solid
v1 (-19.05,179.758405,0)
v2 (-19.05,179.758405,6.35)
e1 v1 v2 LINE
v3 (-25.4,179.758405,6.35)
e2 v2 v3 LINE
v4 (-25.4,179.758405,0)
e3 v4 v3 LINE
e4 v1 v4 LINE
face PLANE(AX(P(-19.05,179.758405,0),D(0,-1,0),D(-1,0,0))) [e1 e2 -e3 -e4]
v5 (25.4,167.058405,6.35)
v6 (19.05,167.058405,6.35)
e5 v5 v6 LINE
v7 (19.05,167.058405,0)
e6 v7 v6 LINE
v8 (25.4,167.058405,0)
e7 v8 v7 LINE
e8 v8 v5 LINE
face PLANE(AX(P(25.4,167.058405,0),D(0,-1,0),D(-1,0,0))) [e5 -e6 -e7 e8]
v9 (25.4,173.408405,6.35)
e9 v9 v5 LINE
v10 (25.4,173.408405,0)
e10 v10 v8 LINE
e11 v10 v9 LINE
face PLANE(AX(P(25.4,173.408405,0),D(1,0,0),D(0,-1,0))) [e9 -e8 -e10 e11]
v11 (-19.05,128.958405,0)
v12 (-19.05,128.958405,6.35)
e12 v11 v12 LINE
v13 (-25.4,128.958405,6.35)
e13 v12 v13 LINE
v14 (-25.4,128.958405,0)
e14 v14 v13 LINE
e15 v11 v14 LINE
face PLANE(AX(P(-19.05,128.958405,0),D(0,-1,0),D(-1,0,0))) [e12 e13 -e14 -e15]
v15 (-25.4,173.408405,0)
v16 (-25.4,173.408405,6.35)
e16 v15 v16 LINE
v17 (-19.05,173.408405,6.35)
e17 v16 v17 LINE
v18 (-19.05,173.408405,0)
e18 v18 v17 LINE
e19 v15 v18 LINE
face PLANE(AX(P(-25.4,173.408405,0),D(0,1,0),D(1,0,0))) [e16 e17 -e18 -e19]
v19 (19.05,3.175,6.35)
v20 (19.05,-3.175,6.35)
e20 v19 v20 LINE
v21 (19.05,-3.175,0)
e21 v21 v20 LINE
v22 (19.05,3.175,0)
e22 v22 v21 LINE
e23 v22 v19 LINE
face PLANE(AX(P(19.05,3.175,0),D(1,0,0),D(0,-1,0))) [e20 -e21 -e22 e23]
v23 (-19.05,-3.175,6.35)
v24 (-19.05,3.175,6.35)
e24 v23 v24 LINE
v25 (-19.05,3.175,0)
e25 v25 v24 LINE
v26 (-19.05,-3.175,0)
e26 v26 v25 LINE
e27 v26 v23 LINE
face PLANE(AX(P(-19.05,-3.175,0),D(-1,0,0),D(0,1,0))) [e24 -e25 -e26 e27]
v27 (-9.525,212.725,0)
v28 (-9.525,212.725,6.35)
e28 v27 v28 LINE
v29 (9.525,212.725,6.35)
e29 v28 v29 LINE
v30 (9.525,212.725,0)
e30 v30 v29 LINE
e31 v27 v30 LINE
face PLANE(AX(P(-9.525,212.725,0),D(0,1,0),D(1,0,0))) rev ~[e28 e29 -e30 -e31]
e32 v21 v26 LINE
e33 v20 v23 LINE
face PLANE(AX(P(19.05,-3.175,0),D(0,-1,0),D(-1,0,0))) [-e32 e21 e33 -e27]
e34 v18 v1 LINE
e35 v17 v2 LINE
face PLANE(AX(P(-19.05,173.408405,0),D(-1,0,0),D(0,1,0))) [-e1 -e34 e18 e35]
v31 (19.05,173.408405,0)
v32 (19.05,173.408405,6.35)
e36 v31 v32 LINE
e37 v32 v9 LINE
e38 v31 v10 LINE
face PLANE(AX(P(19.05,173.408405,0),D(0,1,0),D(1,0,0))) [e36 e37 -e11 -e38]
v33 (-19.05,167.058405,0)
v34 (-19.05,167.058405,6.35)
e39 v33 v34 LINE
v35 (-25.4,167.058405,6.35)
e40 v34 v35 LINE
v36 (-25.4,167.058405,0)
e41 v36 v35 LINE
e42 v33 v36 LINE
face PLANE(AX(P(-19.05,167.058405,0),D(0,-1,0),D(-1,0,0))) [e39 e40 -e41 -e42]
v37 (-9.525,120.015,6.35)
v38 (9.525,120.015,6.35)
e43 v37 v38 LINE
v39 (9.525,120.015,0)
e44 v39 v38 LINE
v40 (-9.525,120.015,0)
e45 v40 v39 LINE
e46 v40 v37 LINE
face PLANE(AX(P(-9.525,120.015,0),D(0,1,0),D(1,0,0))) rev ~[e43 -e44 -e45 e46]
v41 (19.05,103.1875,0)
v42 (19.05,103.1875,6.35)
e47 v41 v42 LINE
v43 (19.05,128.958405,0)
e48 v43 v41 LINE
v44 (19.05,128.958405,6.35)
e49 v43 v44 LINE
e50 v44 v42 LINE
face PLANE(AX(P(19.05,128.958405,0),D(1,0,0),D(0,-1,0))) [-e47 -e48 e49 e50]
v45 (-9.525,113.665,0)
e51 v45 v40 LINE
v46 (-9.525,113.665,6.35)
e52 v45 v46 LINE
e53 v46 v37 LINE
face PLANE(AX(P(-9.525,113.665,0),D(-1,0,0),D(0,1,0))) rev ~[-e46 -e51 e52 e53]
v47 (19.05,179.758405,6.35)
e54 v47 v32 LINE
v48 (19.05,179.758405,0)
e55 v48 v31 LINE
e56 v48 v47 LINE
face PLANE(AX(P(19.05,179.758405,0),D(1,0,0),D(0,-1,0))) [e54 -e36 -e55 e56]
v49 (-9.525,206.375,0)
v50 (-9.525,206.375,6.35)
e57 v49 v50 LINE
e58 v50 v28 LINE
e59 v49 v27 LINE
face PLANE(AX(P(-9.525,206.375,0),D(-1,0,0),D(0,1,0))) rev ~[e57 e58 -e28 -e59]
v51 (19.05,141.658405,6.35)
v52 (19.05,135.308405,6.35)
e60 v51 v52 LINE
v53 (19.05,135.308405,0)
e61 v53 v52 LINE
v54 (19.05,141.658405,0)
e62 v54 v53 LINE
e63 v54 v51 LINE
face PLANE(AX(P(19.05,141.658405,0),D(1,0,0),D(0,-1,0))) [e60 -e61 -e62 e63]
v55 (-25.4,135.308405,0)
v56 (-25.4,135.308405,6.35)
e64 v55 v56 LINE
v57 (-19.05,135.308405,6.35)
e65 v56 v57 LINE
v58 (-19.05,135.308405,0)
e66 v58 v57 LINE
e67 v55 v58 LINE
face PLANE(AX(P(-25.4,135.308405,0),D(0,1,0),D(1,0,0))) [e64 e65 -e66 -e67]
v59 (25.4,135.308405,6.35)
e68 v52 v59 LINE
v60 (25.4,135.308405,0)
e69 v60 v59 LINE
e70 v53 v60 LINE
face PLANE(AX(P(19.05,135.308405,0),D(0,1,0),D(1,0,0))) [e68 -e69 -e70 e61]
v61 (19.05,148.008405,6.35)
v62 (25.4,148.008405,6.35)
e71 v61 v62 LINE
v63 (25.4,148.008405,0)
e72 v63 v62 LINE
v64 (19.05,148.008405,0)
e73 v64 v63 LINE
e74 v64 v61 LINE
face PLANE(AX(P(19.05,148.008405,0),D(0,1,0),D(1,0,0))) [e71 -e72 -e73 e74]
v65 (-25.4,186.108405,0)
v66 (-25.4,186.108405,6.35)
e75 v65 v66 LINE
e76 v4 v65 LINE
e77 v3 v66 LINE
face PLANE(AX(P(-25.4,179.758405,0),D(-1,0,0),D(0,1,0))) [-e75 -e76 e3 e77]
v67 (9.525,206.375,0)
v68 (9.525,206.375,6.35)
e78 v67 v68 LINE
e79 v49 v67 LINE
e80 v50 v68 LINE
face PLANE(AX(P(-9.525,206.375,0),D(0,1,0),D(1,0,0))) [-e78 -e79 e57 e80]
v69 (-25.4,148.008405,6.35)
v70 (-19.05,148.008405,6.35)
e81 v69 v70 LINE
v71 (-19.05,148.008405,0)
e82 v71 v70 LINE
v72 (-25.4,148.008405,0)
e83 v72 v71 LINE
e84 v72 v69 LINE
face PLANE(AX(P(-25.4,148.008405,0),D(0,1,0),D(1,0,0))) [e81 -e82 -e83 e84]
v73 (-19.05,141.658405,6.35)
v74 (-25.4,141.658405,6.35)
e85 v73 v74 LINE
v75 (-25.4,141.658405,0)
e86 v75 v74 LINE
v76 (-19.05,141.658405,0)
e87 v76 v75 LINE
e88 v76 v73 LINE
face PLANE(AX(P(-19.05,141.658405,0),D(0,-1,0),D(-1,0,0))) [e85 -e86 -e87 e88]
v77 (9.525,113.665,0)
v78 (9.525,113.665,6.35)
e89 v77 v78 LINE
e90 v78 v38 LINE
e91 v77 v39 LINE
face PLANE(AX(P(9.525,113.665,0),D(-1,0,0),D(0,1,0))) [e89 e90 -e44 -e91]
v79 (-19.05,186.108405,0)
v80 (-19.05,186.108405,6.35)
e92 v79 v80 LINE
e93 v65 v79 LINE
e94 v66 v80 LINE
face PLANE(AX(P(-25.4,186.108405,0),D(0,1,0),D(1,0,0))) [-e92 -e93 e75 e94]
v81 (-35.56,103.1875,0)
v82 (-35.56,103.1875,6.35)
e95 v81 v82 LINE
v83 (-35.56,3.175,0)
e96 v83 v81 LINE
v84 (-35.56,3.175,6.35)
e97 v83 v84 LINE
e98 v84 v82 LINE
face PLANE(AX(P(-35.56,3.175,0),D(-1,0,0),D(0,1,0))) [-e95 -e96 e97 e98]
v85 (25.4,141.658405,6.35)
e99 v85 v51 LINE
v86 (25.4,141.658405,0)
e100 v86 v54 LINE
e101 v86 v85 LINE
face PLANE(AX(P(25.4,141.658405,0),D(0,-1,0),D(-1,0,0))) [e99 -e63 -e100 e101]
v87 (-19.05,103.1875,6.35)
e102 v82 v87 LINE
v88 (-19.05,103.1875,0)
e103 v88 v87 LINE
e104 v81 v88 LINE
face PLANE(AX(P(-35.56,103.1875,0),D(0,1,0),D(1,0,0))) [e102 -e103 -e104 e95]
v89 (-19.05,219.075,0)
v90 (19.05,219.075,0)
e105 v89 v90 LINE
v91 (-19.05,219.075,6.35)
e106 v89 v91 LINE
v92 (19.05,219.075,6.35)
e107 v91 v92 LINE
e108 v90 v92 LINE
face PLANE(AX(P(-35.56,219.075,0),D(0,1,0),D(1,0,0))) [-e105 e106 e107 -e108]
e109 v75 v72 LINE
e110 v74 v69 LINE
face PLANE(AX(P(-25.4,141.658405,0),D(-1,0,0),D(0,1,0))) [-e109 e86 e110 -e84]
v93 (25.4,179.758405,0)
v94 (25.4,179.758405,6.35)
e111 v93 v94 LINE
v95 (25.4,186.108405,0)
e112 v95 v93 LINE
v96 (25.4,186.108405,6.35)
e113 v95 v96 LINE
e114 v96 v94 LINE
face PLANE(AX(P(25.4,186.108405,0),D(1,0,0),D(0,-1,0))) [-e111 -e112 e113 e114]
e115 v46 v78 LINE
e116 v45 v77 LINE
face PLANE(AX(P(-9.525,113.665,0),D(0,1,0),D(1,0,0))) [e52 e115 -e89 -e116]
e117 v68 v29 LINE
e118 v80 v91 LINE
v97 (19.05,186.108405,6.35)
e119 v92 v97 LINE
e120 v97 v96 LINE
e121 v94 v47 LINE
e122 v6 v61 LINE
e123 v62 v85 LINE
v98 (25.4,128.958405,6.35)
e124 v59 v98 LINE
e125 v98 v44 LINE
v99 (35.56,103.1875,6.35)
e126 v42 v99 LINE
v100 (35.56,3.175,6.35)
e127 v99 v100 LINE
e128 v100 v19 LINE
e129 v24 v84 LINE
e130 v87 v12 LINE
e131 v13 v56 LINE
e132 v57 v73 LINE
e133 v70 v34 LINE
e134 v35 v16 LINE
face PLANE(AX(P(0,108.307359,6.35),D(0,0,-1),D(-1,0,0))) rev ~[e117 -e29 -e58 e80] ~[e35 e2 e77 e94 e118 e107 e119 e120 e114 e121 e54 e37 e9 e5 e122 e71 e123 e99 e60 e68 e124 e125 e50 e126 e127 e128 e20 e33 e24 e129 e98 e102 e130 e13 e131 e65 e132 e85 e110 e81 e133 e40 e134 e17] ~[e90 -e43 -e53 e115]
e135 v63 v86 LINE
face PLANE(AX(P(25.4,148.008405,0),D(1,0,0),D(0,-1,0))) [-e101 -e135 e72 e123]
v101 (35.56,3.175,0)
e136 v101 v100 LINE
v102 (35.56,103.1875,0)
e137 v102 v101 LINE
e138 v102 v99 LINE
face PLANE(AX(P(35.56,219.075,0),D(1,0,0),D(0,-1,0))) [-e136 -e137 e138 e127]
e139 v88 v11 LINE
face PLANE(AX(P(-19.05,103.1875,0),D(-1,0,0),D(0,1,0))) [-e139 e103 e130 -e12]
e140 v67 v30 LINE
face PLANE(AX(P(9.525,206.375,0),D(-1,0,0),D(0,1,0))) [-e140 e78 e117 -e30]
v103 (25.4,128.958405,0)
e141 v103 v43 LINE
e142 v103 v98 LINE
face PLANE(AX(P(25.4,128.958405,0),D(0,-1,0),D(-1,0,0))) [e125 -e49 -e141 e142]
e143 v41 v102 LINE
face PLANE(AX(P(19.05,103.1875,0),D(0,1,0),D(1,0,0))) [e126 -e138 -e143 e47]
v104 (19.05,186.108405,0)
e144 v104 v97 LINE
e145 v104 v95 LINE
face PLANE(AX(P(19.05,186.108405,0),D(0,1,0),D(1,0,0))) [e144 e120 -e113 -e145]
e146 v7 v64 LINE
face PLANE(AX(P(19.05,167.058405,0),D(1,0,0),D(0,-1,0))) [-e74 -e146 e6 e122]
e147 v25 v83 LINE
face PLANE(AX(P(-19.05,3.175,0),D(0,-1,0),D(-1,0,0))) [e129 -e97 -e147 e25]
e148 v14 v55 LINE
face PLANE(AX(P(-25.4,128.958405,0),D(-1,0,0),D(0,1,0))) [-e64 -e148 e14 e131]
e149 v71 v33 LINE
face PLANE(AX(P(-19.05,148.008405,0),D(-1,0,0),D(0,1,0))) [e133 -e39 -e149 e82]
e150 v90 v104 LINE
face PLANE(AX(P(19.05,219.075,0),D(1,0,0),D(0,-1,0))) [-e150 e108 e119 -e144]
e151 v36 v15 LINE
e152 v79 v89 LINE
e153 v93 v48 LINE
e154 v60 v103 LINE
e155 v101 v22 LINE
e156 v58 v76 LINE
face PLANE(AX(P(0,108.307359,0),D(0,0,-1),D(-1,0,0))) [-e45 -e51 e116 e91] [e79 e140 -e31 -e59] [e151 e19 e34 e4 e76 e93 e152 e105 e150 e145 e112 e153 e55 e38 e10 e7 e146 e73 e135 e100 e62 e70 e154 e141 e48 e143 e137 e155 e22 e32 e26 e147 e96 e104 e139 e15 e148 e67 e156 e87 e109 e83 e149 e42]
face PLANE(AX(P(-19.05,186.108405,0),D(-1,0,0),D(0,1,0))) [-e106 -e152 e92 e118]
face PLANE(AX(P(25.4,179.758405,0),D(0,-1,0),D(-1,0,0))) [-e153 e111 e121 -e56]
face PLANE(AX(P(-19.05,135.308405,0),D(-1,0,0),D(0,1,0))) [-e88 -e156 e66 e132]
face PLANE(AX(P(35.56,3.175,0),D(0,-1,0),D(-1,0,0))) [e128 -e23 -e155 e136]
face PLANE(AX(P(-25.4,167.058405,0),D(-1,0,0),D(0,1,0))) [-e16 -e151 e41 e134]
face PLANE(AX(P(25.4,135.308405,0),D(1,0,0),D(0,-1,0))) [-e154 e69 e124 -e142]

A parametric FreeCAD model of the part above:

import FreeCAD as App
import Part
import Sketcher
Q = App.Units.Quantity

doc = App.newDocument("Part")
body = doc.addObject("PartDesign::Body", "Body")

# Sketch on XY plane
sketch1 = body.newObject("Sketcher::SketchObject", "Sketch")
sketch1.AttachmentSupport = (doc.getObject("XY_Plane"), [""])
sketch1.MapMode = "FlatFace"
sketch1.addGeometry([
    Part.LineSegment(App.Vector(-19.05, -3.175, 0), App.Vector(19.05, -3.175, 0)),  # 0
    Part.LineSegment(App.Vector(19.05, -3.175, 0), App.Vector(19.05, 3.175, 0)),  # 1
    Part.LineSegment(App.Vector(19.05, 3.175, 0), App.Vector(35.56, 3.175, 0)),  # 2
    Part.LineSegment(App.Vector(35.56, 3.175, 0), App.Vector(35.56, 219.075, 0)),  # 3
    Part.LineSegment(App.Vector(35.56, 219.075, 0), App.Vector(-35.56, 219.075, 0)),  # 4
    Part.LineSegment(App.Vector(-35.56, 219.075, 0), App.Vector(-35.56, 3.175, 0)),  # 5
    Part.LineSegment(App.Vector(-35.56, 3.175, 0), App.Vector(-19.05, 3.175, 0)),  # 6
    Part.LineSegment(App.Vector(-19.05, 3.175, 0), App.Vector(-19.05, -3.175, 0)),  # 7
    Part.LineSegment(App.Vector(-9.525, 113.665, 0), App.Vector(-9.525, 120.015, 0)),  # 8
    Part.LineSegment(App.Vector(-9.525, 120.015, 0), App.Vector(9.525, 120.015, 0)),  # 9
    Part.LineSegment(App.Vector(9.525, 120.015, 0), App.Vector(9.525, 113.665, 0)),  # 10
    Part.LineSegment(App.Vector(9.525, 113.665, 0), App.Vector(-9.525, 113.665, 0)),  # 11
    Part.LineSegment(App.Vector(-9.525, 206.375, 0), App.Vector(-9.525, 212.725, 0)),  # 12
    Part.LineSegment(App.Vector(-9.525, 212.725, 0), App.Vector(9.525, 212.725, 0)),  # 13
    Part.LineSegment(App.Vector(9.525, 212.725, 0), App.Vector(9.525, 206.375, 0)),  # 14
    Part.LineSegment(App.Vector(9.525, 206.375, 0), App.Vector(-9.525, 206.375, 0)),  # 15
], False)
sketch1.addConstraint([
    Sketcher.Constraint("Coincident", 0, 2, 1, 1),
    Sketcher.Constraint("Coincident", 1, 2, 2, 1),
    Sketcher.Constraint("Coincident", 2, 2, 3, 1),
    Sketcher.Constraint("Coincident", 3, 2, 4, 1),
    Sketcher.Constraint("Coincident", 4, 2, 5, 1),
    Sketcher.Constraint("Coincident", 5, 2, 6, 1),
    Sketcher.Constraint("Coincident", 6, 2, 7, 1),
    Sketcher.Constraint("Coincident", 7, 2, 0, 1),
    Sketcher.Constraint("Coincident", 8, 2, 9, 1),
    Sketcher.Constraint("Coincident", 9, 2, 10, 1),
    Sketcher.Constraint("Coincident", 10, 2, 11, 1),
    Sketcher.Constraint("Coincident", 11, 2, 8, 1),
    Sketcher.Constraint("Coincident", 12, 2, 13, 1),
    Sketcher.Constraint("Coincident", 13, 2, 14, 1),
    Sketcher.Constraint("Coincident", 14, 2, 15, 1),
    Sketcher.Constraint("Coincident", 15, 2, 12, 1),
    Sketcher.Constraint("Horizontal", 0),
    Sketcher.Constraint("Vertical", 1),
    Sketcher.Constraint("Horizontal", 2),
    Sketcher.Constraint("Vertical", 3),
    Sketcher.Constraint("Horizontal", 4),
    Sketcher.Constraint("Vertical", 5),
    Sketcher.Constraint("Horizontal", 6),
    Sketcher.Constraint("Vertical", 7),
    Sketcher.Constraint("Vertical", 8),
    Sketcher.Constraint("Horizontal", 9),
    Sketcher.Constraint("Vertical", 10),
    Sketcher.Constraint("Horizontal", 11),
    Sketcher.Constraint("Vertical", 12),
    Sketcher.Constraint("Horizontal", 13),
    Sketcher.Constraint("Vertical", 14),
    Sketcher.Constraint("Horizontal", 15),
    Sketcher.Constraint("Symmetric", 0, 2, 6, 2, -1, 1),
    Sketcher.Constraint("Symmetric", 2, 2, 5, 2, -2),
    Sketcher.Constraint("Vertical", 11, 2, 12, 2),
    Sketcher.Constraint("Vertical", 10, 2, 13, 2),
    Sketcher.Constraint("Equal", 7, 8),
    Sketcher.Constraint("Equal", 10, 12),
    Sketcher.Constraint("DistanceX", 0, 1, 0, 2, Q("1.5 in")),
    Sketcher.Constraint("DistanceX", 4, 2, 4, 1, Q("2.8 in")),
    Sketcher.Constraint("DistanceY", 3, 1, 3, 2, Q("8.5 in")),
    Sketcher.Constraint("DistanceX", 9, 1, 9, 2, Q("0.75 in")),
    Sketcher.Constraint("DistanceY", 1, 1, 1, 2, Q("0.25 in")),
    Sketcher.Constraint("DistanceY", 8, 2, 4, 2, Q("3.9 in")),
    Sketcher.Constraint("DistanceY", 11, 2, 12, 2, Q("3.9 in")),
    Sketcher.Constraint("DistanceX", 8, 2, -1, 1, Q("0.375 in")),
])
pad1 = body.newObject("PartDesign::Pad", "Pad")
pad1.Profile = sketch1
pad1.Length = Q("0.25 in")

# Sketch on XY plane
sketch2 = body.newObject("Sketcher::SketchObject", "Sketch001")
sketch2.AttachmentSupport = (doc.getObject("XY_Plane"), [""])
sketch2.MapMode = "FlatFace"
sketch2.addGeometry([
    Part.LineSegment(App.Vector(19.05, 219.075, 0), App.Vector(35.56, 219.075, 0)),  # 0
    Part.LineSegment(App.Vector(35.56, 219.075, 0), App.Vector(35.56, 103.1875, 0)),  # 1
    Part.LineSegment(App.Vector(35.56, 103.1875, 0), App.Vector(19.05, 103.1875, 0)),  # 2
    Part.LineSegment(App.Vector(19.05, 103.1875, 0), App.Vector(19.05, 128.958405, 0)),  # 3
    Part.LineSegment(App.Vector(19.05, 128.958405, 0), App.Vector(25.4, 128.958405, 0)),  # 4
    Part.LineSegment(App.Vector(25.4, 128.958405, 0), App.Vector(25.4, 135.308405, 0)),  # 5
    Part.LineSegment(App.Vector(25.4, 135.308405, 0), App.Vector(19.05, 135.308405, 0)),  # 6
    Part.LineSegment(App.Vector(19.05, 135.308405, 0), App.Vector(19.05, 141.658405, 0)),  # 7
    Part.LineSegment(App.Vector(19.05, 141.658405, 0), App.Vector(25.4, 141.658405, 0)),  # 8
    Part.LineSegment(App.Vector(25.4, 141.658405, 0), App.Vector(25.4, 148.008405, 0)),  # 9
    Part.LineSegment(App.Vector(25.4, 148.008405, 0), App.Vector(19.05, 148.008405, 0)),  # 10
    Part.LineSegment(App.Vector(19.05, 148.008405, 0), App.Vector(19.05, 167.058405, 0)),  # 11
    Part.LineSegment(App.Vector(19.05, 167.058405, 0), App.Vector(25.4, 167.058405, 0)),  # 12
    Part.LineSegment(App.Vector(25.4, 167.058405, 0), App.Vector(25.4, 173.408405, 0)),  # 13
    Part.LineSegment(App.Vector(25.4, 173.408405, 0), App.Vector(19.05, 173.408405, 0)),  # 14
    Part.LineSegment(App.Vector(19.05, 173.408405, 0), App.Vector(19.05, 179.758405, 0)),  # 15
    Part.LineSegment(App.Vector(19.05, 179.758405, 0), App.Vector(25.4, 179.758405, 0)),  # 16
    Part.LineSegment(App.Vector(25.4, 179.758405, 0), App.Vector(25.4, 186.108405, 0)),  # 17
    Part.LineSegment(App.Vector(25.4, 186.108405, 0), App.Vector(19.05, 186.108405, 0)),  # 18
    Part.LineSegment(App.Vector(19.05, 186.108405, 0), App.Vector(19.05, 219.075, 0)),  # 19
    Part.LineSegment(App.Vector(-19.05, 103.1875, 0), App.Vector(-35.56, 103.1875, 0)),  # 20
    Part.LineSegment(App.Vector(-35.56, 103.1875, 0), App.Vector(-35.56, 219.075, 0)),  # 21
    Part.LineSegment(App.Vector(-35.56, 219.075, 0), App.Vector(-19.05, 219.075, 0)),  # 22
    Part.LineSegment(App.Vector(-19.05, 219.075, 0), App.Vector(-19.05, 186.108405, 0)),  # 23
    Part.LineSegment(App.Vector(-19.05, 186.108405, 0), App.Vector(-25.4, 186.108405, 0)),  # 24
    Part.LineSegment(App.Vector(-25.4, 186.108405, 0), App.Vector(-25.4, 179.758405, 0)),  # 25
    Part.LineSegment(App.Vector(-25.4, 179.758405, 0), App.Vector(-19.05, 179.758405, 0)),  # 26
    Part.LineSegment(App.Vector(-19.05, 179.758405, 0), App.Vector(-19.05, 173.408405, 0)),  # 27
    Part.LineSegment(App.Vector(-19.05, 173.408405, 0), App.Vector(-25.4, 173.408405, 0)),  # 28
    Part.LineSegment(App.Vector(-25.4, 173.408405, 0), App.Vector(-25.4, 167.058405, 0)),  # 29
    Part.LineSegment(App.Vector(-25.4, 167.058405, 0), App.Vector(-19.05, 167.058405, 0)),  # 30
    Part.LineSegment(App.Vector(-19.05, 167.058405, 0), App.Vector(-19.05, 148.008405, 0)),  # 31
    Part.LineSegment(App.Vector(-19.05, 148.008405, 0), App.Vector(-25.4, 148.008405, 0)),  # 32
    Part.LineSegment(App.Vector(-25.4, 148.008405, 0), App.Vector(-25.4, 141.658405, 0)),  # 33
    Part.LineSegment(App.Vector(-25.4, 141.658405, 0), App.Vector(-19.05, 141.658405, 0)),  # 34
    Part.LineSegment(App.Vector(-19.05, 141.658405, 0), App.Vector(-19.05, 135.308405, 0)),  # 35
    Part.LineSegment(App.Vector(-19.05, 135.308405, 0), App.Vector(-25.4, 135.308405, 0)),  # 36
    Part.LineSegment(App.Vector(-25.4, 135.308405, 0), App.Vector(-25.4, 128.958405, 0)),  # 37
    Part.LineSegment(App.Vector(-25.4, 128.958405, 0), App.Vector(-19.05, 128.958405, 0)),  # 38
    Part.LineSegment(App.Vector(-19.05, 128.958405, 0), App.Vector(-19.05, 103.1875, 0)),  # 39
], False)
sketch2.addConstraint([
    Sketcher.Constraint("Coincident", 0, 2, 1, 1),
    Sketcher.Constraint("Coincident", 1, 2, 2, 1),
    Sketcher.Constraint("Coincident", 2, 2, 3, 1),
    Sketcher.Constraint("Coincident", 3, 2, 4, 1),
    Sketcher.Constraint("Coincident", 4, 2, 5, 1),
    Sketcher.Constraint("Coincident", 5, 2, 6, 1),
    Sketcher.Constraint("Coincident", 6, 2, 7, 1),
    Sketcher.Constraint("Coincident", 7, 2, 8, 1),
    Sketcher.Constraint("Coincident", 8, 2, 9, 1),
    Sketcher.Constraint("Coincident", 9, 2, 10, 1),
    Sketcher.Constraint("Coincident", 10, 2, 11, 1),
    Sketcher.Constraint("Coincident", 11, 2, 12, 1),
    Sketcher.Constraint("Coincident", 12, 2, 13, 1),
    Sketcher.Constraint("Coincident", 13, 2, 14, 1),
    Sketcher.Constraint("Coincident", 14, 2, 15, 1),
    Sketcher.Constraint("Coincident", 15, 2, 16, 1),
    Sketcher.Constraint("Coincident", 16, 2, 17, 1),
    Sketcher.Constraint("Coincident", 17, 2, 18, 1),
    Sketcher.Constraint("Coincident", 18, 2, 19, 1),
    Sketcher.Constraint("Coincident", 19, 2, 0, 1),
    Sketcher.Constraint("Coincident", 20, 2, 21, 1),
    Sketcher.Constraint("Coincident", 21, 2, 22, 1),
    Sketcher.Constraint("Coincident", 22, 2, 23, 1),
    Sketcher.Constraint("Coincident", 23, 2, 24, 1),
    Sketcher.Constraint("Coincident", 24, 2, 25, 1),
    Sketcher.Constraint("Coincident", 25, 2, 26, 1),
    Sketcher.Constraint("Coincident", 26, 2, 27, 1),
    Sketcher.Constraint("Coincident", 27, 2, 28, 1),
    Sketcher.Constraint("Coincident", 28, 2, 29, 1),
    Sketcher.Constraint("Coincident", 29, 2, 30, 1),
    Sketcher.Constraint("Coincident", 30, 2, 31, 1),
    Sketcher.Constraint("Coincident", 31, 2, 32, 1),
    Sketcher.Constraint("Coincident", 32, 2, 33, 1),
    Sketcher.Constraint("Coincident", 33, 2, 34, 1),
    Sketcher.Constraint("Coincident", 34, 2, 35, 1),
    Sketcher.Constraint("Coincident", 35, 2, 36, 1),
    Sketcher.Constraint("Coincident", 36, 2, 37, 1),
    Sketcher.Constraint("Coincident", 37, 2, 38, 1),
    Sketcher.Constraint("Coincident", 38, 2, 39, 1),
    Sketcher.Constraint("Coincident", 39, 2, 20, 1),
    Sketcher.Constraint("Horizontal", 0),
    Sketcher.Constraint("Vertical", 1),
    Sketcher.Constraint("Horizontal", 2),
    Sketcher.Constraint("Vertical", 3),
    Sketcher.Constraint("Horizontal", 4),
    Sketcher.Constraint("Vertical", 5),
    Sketcher.Constraint("Horizontal", 6),
    Sketcher.Constraint("Vertical", 7),
    Sketcher.Constraint("Horizontal", 8),
    Sketcher.Constraint("Vertical", 9),
    Sketcher.Constraint("Horizontal", 10),
    Sketcher.Constraint("Vertical", 11),
    Sketcher.Constraint("Horizontal", 12),
    Sketcher.Constraint("Vertical", 13),
    Sketcher.Constraint("Horizontal", 14),
    Sketcher.Constraint("Vertical", 15),
    Sketcher.Constraint("Horizontal", 16),
    Sketcher.Constraint("Vertical", 17),
    Sketcher.Constraint("Horizontal", 18),
    Sketcher.Constraint("Vertical", 19),
    Sketcher.Constraint("Horizontal", 20),
    Sketcher.Constraint("Vertical", 21),
    Sketcher.Constraint("Horizontal", 22),
    Sketcher.Constraint("Vertical", 23),
    Sketcher.Constraint("Horizontal", 24),
    Sketcher.Constraint("Vertical", 25),
    Sketcher.Constraint("Horizontal", 26),
    Sketcher.Constraint("Vertical", 27),
    Sketcher.Constraint("Horizontal", 28),
    Sketcher.Constraint("Vertical", 29),
    Sketcher.Constraint("Horizontal", 30),
    Sketcher.Constraint("Vertical", 31),
    Sketcher.Constraint("Horizontal", 32),
    Sketcher.Constraint("Vertical", 33),
    Sketcher.Constraint("Horizontal", 34),
    Sketcher.Constraint("Vertical", 35),
    Sketcher.Constraint("Horizontal", 36),
    Sketcher.Constraint("Vertical", 37),
    Sketcher.Constraint("Horizontal", 38),
    Sketcher.Constraint("Vertical", 39),
    Sketcher.Constraint("Symmetric", 1, 2, 20, 2, -2),
    Sketcher.Constraint("Symmetric", 19, 2, 22, 2, -2),
    Sketcher.Constraint("Symmetric", 17, 2, 24, 2, -2),
    Sketcher.Constraint("Symmetric", 15, 2, 26, 2, -2),
    Sketcher.Constraint("Symmetric", 13, 2, 28, 2, -2),
    Sketcher.Constraint("Symmetric", 11, 2, 30, 2, -2),
    Sketcher.Constraint("Symmetric", 9, 2, 32, 2, -2),
    Sketcher.Constraint("Symmetric", 7, 2, 34, 2, -2),
    Sketcher.Constraint("Symmetric", 5, 2, 36, 2, -2),
    Sketcher.Constraint("Symmetric", 3, 2, 38, 2, -2),
    Sketcher.Constraint("Vertical", 3, 2, 6, 2),
    Sketcher.Constraint("Vertical", 5, 2, 8, 2),
    Sketcher.Constraint("Vertical", 7, 2, 10, 2),
    Sketcher.Constraint("Vertical", 9, 2, 12, 2),
    Sketcher.Constraint("Vertical", 11, 2, 14, 2),
    Sketcher.Constraint("Vertical", 13, 2, 16, 2),
    Sketcher.Constraint("Vertical", 15, 2, 18, 2),
    Sketcher.Constraint("Equal", 38, 5),
    Sketcher.Constraint("Equal", 5, 7),
    Sketcher.Constraint("Equal", 7, 9),
    Sketcher.Constraint("Equal", 9, 13),
    Sketcher.Constraint("Equal", 13, 15),
    Sketcher.Constraint("Equal", 15, 17),
    Sketcher.Constraint("DistanceX", -1, 1, 4, 2, Q("1 in")),
    Sketcher.Constraint("DistanceY", 7, 2, 11, 2, Q("1 in")),
    Sketcher.Constraint("DistanceX", 0, 1, 0, 2, Q("0.65 in")),
    Sketcher.Constraint("DistanceX", 4, 1, 4, 2, Q("0.25 in")),
    Sketcher.Constraint("DistanceY", 1, 2, 1, 1, Q("4.5625 in")),
    Sketcher.Constraint("DistanceY", -1, 1, 0, 2, Q("8.625 in")),
    Sketcher.Constraint("DistanceY", 3, 1, 3, 2, 25.770905),
])
pocket1 = body.newObject("PartDesign::Pocket", "Pocket")
pocket1.Profile = sketch2
pocket1.Length = Q("0.25 in")
pocket1.Reversed = True

doc.recompute()
